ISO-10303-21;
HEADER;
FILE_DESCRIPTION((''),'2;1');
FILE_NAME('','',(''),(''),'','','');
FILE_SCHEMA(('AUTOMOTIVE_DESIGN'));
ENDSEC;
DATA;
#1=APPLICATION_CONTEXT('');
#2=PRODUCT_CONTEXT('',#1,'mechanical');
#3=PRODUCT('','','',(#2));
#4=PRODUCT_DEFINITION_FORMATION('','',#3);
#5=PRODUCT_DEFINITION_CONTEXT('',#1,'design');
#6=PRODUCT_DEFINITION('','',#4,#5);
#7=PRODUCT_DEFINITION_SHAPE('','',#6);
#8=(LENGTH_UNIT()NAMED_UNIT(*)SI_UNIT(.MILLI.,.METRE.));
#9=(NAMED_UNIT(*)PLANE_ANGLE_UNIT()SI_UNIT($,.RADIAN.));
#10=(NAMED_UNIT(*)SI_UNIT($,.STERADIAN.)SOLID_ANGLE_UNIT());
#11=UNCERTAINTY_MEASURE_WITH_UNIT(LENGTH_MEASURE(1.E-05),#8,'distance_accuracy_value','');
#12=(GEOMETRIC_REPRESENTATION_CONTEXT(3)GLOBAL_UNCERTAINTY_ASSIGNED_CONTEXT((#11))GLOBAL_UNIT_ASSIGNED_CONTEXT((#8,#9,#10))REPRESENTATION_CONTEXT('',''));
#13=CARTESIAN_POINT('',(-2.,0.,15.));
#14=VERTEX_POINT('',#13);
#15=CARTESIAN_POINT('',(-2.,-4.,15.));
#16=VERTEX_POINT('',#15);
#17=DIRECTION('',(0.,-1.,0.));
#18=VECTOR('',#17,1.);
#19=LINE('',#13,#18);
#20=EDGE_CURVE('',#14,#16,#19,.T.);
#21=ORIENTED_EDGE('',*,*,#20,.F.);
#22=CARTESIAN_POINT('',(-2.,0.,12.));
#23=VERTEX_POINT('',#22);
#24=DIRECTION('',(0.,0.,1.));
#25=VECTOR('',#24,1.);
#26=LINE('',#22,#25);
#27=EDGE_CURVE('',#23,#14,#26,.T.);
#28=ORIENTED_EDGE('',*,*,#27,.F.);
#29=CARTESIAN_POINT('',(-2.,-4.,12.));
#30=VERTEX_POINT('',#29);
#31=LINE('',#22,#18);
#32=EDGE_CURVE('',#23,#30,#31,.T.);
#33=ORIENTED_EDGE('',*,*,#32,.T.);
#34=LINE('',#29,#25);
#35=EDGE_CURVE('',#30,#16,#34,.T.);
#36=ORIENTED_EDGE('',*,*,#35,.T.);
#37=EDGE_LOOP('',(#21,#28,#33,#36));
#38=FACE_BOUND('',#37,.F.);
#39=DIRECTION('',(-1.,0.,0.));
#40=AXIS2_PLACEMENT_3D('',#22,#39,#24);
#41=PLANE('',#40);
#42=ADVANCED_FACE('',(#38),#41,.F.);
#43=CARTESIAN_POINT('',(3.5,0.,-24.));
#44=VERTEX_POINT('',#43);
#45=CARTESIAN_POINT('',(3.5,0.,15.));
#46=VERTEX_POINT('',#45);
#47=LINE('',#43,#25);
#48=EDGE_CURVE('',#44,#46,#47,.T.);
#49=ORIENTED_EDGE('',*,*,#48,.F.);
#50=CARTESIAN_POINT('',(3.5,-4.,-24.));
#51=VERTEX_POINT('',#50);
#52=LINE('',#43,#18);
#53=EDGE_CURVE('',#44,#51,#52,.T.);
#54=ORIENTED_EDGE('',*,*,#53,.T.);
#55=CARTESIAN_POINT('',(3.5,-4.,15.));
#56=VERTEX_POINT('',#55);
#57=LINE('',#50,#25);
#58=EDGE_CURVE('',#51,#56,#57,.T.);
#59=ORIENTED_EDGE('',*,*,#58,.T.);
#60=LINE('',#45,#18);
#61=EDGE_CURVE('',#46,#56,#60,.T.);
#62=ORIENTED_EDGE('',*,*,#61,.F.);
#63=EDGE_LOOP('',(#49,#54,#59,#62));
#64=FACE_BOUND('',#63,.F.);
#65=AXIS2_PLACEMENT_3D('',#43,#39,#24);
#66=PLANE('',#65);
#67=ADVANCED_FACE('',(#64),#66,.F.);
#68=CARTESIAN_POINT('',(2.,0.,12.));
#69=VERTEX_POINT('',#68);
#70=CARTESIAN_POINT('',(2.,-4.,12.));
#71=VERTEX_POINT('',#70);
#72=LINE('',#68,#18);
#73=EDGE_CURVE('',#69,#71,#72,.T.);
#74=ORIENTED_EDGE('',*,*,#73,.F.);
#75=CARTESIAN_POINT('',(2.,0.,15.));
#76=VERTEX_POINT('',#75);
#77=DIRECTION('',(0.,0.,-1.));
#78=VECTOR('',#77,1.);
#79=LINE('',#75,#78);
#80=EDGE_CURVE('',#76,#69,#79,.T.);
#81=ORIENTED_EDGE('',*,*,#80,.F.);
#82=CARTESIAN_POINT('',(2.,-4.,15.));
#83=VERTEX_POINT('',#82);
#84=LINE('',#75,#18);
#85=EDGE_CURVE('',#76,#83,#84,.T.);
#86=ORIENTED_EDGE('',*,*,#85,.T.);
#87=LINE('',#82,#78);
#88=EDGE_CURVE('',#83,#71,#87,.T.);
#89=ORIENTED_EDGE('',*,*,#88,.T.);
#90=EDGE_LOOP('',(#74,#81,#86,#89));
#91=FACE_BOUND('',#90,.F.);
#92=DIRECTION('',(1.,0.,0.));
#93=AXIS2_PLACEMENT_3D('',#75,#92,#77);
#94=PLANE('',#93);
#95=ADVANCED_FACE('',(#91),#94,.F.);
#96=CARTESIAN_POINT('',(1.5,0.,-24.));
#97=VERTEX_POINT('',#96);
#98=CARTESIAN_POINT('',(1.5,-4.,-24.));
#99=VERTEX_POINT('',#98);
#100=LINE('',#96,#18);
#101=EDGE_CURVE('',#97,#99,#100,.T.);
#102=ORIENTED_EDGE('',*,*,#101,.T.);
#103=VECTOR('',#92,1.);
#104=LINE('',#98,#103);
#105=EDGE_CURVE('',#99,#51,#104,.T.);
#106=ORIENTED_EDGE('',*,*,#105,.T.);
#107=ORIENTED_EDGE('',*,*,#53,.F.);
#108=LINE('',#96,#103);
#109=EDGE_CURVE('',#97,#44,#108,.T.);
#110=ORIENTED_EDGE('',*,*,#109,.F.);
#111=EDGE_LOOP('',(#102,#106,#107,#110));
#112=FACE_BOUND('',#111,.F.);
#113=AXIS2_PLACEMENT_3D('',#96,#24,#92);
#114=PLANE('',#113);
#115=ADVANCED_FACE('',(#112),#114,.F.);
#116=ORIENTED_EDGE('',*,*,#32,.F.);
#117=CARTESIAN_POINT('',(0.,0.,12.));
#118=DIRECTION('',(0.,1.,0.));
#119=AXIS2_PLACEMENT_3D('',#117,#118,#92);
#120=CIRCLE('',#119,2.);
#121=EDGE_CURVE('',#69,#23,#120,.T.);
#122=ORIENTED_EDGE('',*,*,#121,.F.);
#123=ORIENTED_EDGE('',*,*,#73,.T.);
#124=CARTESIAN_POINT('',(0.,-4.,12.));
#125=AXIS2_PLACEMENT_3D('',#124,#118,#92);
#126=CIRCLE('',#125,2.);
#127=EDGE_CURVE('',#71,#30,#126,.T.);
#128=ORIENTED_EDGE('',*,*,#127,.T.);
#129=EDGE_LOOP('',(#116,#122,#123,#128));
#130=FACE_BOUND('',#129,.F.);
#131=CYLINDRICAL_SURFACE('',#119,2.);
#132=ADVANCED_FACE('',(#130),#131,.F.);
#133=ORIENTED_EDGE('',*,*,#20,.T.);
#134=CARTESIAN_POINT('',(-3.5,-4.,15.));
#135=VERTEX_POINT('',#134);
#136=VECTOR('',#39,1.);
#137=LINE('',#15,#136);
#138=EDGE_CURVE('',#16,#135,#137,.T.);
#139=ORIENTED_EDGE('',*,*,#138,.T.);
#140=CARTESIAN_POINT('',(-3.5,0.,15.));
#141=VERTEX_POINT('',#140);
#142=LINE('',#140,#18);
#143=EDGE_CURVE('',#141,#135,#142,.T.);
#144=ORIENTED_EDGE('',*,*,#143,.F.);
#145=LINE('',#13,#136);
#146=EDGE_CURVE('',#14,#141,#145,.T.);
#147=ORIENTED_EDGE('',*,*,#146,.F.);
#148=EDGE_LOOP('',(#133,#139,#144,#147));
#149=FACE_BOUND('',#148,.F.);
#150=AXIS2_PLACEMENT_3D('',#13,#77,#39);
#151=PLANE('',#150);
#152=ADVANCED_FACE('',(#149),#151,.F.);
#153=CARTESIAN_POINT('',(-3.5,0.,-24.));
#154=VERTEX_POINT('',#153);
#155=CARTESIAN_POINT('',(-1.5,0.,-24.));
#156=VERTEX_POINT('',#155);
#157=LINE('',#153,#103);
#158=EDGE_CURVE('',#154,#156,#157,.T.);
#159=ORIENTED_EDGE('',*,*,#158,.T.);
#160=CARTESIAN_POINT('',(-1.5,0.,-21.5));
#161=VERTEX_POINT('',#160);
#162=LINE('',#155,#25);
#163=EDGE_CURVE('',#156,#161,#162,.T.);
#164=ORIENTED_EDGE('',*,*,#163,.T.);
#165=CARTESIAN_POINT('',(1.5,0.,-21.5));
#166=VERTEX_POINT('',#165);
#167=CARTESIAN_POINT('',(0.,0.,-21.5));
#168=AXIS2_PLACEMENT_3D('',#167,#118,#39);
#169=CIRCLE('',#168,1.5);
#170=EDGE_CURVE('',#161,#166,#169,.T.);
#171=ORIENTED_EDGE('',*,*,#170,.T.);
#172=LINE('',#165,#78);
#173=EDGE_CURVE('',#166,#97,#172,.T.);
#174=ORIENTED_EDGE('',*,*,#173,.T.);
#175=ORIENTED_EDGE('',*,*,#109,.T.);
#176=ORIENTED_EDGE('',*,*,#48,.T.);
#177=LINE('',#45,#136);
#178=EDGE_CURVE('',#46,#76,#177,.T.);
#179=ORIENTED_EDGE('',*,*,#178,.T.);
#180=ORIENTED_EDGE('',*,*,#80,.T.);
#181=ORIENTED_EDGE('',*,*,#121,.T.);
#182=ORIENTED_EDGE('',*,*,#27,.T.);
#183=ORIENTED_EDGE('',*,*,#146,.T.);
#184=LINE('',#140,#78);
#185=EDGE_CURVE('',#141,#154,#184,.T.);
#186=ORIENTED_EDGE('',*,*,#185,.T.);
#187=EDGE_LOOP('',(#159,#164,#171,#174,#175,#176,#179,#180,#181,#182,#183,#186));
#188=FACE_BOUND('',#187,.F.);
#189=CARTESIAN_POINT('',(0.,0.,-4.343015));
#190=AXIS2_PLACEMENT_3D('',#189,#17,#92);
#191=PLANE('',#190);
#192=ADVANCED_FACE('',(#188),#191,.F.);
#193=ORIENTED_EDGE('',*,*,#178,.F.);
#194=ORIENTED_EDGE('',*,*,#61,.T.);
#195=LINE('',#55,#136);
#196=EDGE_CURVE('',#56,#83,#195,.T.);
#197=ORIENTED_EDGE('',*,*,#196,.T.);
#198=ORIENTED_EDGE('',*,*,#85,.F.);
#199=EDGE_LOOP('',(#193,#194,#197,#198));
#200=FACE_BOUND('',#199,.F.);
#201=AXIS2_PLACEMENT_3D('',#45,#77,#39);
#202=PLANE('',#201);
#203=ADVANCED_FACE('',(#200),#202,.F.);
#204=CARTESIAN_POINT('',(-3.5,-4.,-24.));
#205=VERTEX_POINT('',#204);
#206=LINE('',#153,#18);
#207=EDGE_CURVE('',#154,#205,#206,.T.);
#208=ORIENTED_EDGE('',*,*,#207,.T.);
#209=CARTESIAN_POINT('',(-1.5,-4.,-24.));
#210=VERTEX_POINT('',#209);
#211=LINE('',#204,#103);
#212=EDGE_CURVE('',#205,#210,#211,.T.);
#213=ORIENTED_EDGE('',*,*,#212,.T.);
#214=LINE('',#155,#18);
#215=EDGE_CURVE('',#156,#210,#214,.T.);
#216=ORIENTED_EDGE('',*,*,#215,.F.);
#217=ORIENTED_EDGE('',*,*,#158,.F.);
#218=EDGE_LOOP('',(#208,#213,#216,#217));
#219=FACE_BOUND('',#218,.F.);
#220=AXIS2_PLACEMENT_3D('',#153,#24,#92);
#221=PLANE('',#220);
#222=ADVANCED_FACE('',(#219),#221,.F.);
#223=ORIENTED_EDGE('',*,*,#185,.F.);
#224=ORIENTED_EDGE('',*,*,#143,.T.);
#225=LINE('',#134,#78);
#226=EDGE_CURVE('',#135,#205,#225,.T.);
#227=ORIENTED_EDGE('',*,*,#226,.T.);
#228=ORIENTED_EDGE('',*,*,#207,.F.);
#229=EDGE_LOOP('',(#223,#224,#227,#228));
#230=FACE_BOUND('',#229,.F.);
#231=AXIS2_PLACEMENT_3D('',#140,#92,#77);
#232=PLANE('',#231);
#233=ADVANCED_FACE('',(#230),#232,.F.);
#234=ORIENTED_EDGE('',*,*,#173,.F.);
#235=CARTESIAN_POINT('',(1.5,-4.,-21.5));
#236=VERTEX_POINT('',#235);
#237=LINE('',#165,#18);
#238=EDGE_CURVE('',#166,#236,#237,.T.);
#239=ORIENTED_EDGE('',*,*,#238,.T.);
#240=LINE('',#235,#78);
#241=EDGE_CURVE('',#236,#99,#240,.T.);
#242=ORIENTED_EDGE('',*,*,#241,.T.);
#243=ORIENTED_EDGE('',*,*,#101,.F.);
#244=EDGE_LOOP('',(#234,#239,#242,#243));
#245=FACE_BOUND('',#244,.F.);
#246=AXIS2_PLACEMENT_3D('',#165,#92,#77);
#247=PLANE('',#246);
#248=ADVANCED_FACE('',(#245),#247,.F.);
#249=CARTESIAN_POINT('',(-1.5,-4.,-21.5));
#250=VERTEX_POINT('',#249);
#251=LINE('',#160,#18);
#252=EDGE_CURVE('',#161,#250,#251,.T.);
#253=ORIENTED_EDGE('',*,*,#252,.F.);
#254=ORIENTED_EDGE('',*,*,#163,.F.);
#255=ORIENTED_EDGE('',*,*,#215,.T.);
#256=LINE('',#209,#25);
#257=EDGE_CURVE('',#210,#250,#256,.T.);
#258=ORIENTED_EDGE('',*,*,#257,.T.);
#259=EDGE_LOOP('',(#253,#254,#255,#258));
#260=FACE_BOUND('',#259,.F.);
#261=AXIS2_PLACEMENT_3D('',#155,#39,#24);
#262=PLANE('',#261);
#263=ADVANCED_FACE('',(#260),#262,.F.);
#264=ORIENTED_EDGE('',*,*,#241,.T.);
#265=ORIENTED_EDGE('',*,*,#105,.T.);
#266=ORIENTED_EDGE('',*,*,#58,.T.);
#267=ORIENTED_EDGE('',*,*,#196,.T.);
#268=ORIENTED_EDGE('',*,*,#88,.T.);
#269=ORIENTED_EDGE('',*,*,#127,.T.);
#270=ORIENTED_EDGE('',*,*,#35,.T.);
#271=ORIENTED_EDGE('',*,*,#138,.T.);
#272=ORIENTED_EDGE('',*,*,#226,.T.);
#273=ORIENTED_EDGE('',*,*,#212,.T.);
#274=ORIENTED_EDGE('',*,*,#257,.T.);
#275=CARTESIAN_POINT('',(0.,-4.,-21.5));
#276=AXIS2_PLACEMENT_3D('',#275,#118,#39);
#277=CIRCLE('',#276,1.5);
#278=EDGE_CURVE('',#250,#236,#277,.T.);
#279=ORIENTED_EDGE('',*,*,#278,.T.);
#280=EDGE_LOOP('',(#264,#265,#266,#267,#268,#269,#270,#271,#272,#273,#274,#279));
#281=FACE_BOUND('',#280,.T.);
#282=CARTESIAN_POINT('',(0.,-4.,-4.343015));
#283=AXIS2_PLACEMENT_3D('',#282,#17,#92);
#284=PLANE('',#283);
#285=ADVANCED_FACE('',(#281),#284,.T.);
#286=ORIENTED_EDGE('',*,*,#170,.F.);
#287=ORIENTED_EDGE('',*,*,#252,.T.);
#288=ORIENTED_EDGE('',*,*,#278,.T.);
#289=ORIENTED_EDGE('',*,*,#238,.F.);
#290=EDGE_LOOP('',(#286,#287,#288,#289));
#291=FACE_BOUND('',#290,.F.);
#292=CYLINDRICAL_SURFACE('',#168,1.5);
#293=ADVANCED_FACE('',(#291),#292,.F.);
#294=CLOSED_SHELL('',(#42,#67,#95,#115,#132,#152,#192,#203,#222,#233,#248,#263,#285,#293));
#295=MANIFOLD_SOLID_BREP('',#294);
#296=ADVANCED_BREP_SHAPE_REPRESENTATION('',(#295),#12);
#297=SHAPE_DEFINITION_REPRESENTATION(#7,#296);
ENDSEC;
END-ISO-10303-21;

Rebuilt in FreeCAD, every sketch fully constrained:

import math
import FreeCAD as App
import Part
import Sketcher
from FreeCAD import Vector

doc = App.newDocument("Part")
body = doc.addObject("PartDesign::Body", "Body")

# Sketch on XZ plane
sketch1 = body.newObject("Sketcher::SketchObject", "Sketch")
sketch1.AttachmentSupport = (doc.getObject("XZ_Plane"), [""])
sketch1.MapMode = "FlatFace"
sketch1.addGeometry(Part.LineSegment(Vector(2, 15, 0), Vector(2, 12, 0)), False)
sketch1.addGeometry(Part.ArcOfCircle(Part.Circle(Vector(0, 12, 0), Vector(0, 0, 1), 2), math.radians(180), math.radians(360)), False)
sketch1.addGeometry(Part.LineSegment(Vector(-2, 12, 0), Vector(-2, 15, 0)), False)
sketch1.addGeometry(Part.LineSegment(Vector(-2, 15, 0), Vector(-3.5, 15, 0)), False)
sketch1.addGeometry(Part.LineSegment(Vector(-3.5, 15, 0), Vector(-3.5, -24, 0)), False)
sketch1.addGeometry(Part.LineSegment(Vector(-3.5, -24, 0), Vector(-1.5, -24, 0)), False)
sketch1.addGeometry(Part.LineSegment(Vector(-1.5, -24, 0), Vector(-1.5, -21.5, 0)), False)
sketch1.addGeometry(Part.ArcOfCircle(Part.Circle(Vector(0, -21.5, 0), Vector(0, 0, 1), 1.5), math.radians(0), math.radians(180)), False)
sketch1.addGeometry(Part.LineSegment(Vector(1.5, -21.5, 0), Vector(1.5, -24, 0)), False)
sketch1.addGeometry(Part.LineSegment(Vector(1.5, -24, 0), Vector(3.5, -24, 0)), False)
sketch1.addGeometry(Part.LineSegment(Vector(3.5, -24, 0), Vector(3.5, 15, 0)), False)
sketch1.addGeometry(Part.LineSegment(Vector(3.5, 15, 0), Vector(2, 15, 0)), False)
sketch1.addConstraint(Sketcher.Constraint("Tangent", 0, 2, 1, 2))
sketch1.addConstraint(Sketcher.Constraint("Tangent", 1, 1, 2, 1))
sketch1.addConstraint(Sketcher.Constraint("Coincident", 2, 2, 3, 1))
sketch1.addConstraint(Sketcher.Constraint("Coincident", 3, 2, 4, 1))
sketch1.addConstraint(Sketcher.Constraint("Coincident", 4, 2, 5, 1))
sketch1.addConstraint(Sketcher.Constraint("Coincident", 5, 2, 6, 1))
sketch1.addConstraint(Sketcher.Constraint("Tangent", 6, 2, 7, 2))
sketch1.addConstraint(Sketcher.Constraint("Tangent", 7, 1, 8, 1))
sketch1.addConstraint(Sketcher.Constraint("Coincident", 8, 2, 9, 1))
sketch1.addConstraint(Sketcher.Constraint("Coincident", 9, 2, 10, 1))
sketch1.addConstraint(Sketcher.Constraint("Coincident", 10, 2, 11, 1))
sketch1.addConstraint(Sketcher.Constraint("Coincident", 11, 2, 0, 1))
sketch1.addConstraint(Sketcher.Constraint("Vertical", 0))
sketch1.addConstraint(Sketcher.Constraint("Vertical", 2))
sketch1.addConstraint(Sketcher.Constraint("Horizontal", 3))
sketch1.addConstraint(Sketcher.Constraint("Vertical", 4))
sketch1.addConstraint(Sketcher.Constraint("Horizontal", 5))
sketch1.addConstraint(Sketcher.Constraint("Vertical", 6))
sketch1.addConstraint(Sketcher.Constraint("Vertical", 8))
sketch1.addConstraint(Sketcher.Constraint("Horizontal", 9))
sketch1.addConstraint(Sketcher.Constraint("Vertical", 10))
sketch1.addConstraint(Sketcher.Constraint("Horizontal", 11))
sketch1.addConstraint(Sketcher.Constraint("Symmetric", 5, 2, 8, 2, -2))
sketch1.addConstraint(Sketcher.Constraint("Symmetric", 3, 2, 10, 2, -2))
sketch1.addConstraint(Sketcher.Constraint("PointOnObject", 1, 3, -2))
sketch1.addConstraint(Sketcher.Constraint("Radius", 1, 2.0))
sketch1.addConstraint(Sketcher.Constraint("Radius", 7, 1.5))
sketch1.addConstraint(Sketcher.Constraint("DistanceX", 5, 1, 5, 2, 2.0))
sketch1.addConstraint(Sketcher.Constraint("DistanceY", 0, 2, 0, 1, 3.0))
sketch1.addConstraint(Sketcher.Constraint("DistanceY", 4, 2, 4, 1, 39.0))
sketch1.addConstraint(Sketcher.Constraint("DistanceY", 6, 1, 6, 2, 2.5))
sketch1.addConstraint(Sketcher.Constraint("DistanceY", -1, 1, 1, 3, 12.0))
pad1 = body.newObject("PartDesign::Pad", "Pad")
pad1.Profile = sketch1
pad1.Length = 4

doc.recompute()
